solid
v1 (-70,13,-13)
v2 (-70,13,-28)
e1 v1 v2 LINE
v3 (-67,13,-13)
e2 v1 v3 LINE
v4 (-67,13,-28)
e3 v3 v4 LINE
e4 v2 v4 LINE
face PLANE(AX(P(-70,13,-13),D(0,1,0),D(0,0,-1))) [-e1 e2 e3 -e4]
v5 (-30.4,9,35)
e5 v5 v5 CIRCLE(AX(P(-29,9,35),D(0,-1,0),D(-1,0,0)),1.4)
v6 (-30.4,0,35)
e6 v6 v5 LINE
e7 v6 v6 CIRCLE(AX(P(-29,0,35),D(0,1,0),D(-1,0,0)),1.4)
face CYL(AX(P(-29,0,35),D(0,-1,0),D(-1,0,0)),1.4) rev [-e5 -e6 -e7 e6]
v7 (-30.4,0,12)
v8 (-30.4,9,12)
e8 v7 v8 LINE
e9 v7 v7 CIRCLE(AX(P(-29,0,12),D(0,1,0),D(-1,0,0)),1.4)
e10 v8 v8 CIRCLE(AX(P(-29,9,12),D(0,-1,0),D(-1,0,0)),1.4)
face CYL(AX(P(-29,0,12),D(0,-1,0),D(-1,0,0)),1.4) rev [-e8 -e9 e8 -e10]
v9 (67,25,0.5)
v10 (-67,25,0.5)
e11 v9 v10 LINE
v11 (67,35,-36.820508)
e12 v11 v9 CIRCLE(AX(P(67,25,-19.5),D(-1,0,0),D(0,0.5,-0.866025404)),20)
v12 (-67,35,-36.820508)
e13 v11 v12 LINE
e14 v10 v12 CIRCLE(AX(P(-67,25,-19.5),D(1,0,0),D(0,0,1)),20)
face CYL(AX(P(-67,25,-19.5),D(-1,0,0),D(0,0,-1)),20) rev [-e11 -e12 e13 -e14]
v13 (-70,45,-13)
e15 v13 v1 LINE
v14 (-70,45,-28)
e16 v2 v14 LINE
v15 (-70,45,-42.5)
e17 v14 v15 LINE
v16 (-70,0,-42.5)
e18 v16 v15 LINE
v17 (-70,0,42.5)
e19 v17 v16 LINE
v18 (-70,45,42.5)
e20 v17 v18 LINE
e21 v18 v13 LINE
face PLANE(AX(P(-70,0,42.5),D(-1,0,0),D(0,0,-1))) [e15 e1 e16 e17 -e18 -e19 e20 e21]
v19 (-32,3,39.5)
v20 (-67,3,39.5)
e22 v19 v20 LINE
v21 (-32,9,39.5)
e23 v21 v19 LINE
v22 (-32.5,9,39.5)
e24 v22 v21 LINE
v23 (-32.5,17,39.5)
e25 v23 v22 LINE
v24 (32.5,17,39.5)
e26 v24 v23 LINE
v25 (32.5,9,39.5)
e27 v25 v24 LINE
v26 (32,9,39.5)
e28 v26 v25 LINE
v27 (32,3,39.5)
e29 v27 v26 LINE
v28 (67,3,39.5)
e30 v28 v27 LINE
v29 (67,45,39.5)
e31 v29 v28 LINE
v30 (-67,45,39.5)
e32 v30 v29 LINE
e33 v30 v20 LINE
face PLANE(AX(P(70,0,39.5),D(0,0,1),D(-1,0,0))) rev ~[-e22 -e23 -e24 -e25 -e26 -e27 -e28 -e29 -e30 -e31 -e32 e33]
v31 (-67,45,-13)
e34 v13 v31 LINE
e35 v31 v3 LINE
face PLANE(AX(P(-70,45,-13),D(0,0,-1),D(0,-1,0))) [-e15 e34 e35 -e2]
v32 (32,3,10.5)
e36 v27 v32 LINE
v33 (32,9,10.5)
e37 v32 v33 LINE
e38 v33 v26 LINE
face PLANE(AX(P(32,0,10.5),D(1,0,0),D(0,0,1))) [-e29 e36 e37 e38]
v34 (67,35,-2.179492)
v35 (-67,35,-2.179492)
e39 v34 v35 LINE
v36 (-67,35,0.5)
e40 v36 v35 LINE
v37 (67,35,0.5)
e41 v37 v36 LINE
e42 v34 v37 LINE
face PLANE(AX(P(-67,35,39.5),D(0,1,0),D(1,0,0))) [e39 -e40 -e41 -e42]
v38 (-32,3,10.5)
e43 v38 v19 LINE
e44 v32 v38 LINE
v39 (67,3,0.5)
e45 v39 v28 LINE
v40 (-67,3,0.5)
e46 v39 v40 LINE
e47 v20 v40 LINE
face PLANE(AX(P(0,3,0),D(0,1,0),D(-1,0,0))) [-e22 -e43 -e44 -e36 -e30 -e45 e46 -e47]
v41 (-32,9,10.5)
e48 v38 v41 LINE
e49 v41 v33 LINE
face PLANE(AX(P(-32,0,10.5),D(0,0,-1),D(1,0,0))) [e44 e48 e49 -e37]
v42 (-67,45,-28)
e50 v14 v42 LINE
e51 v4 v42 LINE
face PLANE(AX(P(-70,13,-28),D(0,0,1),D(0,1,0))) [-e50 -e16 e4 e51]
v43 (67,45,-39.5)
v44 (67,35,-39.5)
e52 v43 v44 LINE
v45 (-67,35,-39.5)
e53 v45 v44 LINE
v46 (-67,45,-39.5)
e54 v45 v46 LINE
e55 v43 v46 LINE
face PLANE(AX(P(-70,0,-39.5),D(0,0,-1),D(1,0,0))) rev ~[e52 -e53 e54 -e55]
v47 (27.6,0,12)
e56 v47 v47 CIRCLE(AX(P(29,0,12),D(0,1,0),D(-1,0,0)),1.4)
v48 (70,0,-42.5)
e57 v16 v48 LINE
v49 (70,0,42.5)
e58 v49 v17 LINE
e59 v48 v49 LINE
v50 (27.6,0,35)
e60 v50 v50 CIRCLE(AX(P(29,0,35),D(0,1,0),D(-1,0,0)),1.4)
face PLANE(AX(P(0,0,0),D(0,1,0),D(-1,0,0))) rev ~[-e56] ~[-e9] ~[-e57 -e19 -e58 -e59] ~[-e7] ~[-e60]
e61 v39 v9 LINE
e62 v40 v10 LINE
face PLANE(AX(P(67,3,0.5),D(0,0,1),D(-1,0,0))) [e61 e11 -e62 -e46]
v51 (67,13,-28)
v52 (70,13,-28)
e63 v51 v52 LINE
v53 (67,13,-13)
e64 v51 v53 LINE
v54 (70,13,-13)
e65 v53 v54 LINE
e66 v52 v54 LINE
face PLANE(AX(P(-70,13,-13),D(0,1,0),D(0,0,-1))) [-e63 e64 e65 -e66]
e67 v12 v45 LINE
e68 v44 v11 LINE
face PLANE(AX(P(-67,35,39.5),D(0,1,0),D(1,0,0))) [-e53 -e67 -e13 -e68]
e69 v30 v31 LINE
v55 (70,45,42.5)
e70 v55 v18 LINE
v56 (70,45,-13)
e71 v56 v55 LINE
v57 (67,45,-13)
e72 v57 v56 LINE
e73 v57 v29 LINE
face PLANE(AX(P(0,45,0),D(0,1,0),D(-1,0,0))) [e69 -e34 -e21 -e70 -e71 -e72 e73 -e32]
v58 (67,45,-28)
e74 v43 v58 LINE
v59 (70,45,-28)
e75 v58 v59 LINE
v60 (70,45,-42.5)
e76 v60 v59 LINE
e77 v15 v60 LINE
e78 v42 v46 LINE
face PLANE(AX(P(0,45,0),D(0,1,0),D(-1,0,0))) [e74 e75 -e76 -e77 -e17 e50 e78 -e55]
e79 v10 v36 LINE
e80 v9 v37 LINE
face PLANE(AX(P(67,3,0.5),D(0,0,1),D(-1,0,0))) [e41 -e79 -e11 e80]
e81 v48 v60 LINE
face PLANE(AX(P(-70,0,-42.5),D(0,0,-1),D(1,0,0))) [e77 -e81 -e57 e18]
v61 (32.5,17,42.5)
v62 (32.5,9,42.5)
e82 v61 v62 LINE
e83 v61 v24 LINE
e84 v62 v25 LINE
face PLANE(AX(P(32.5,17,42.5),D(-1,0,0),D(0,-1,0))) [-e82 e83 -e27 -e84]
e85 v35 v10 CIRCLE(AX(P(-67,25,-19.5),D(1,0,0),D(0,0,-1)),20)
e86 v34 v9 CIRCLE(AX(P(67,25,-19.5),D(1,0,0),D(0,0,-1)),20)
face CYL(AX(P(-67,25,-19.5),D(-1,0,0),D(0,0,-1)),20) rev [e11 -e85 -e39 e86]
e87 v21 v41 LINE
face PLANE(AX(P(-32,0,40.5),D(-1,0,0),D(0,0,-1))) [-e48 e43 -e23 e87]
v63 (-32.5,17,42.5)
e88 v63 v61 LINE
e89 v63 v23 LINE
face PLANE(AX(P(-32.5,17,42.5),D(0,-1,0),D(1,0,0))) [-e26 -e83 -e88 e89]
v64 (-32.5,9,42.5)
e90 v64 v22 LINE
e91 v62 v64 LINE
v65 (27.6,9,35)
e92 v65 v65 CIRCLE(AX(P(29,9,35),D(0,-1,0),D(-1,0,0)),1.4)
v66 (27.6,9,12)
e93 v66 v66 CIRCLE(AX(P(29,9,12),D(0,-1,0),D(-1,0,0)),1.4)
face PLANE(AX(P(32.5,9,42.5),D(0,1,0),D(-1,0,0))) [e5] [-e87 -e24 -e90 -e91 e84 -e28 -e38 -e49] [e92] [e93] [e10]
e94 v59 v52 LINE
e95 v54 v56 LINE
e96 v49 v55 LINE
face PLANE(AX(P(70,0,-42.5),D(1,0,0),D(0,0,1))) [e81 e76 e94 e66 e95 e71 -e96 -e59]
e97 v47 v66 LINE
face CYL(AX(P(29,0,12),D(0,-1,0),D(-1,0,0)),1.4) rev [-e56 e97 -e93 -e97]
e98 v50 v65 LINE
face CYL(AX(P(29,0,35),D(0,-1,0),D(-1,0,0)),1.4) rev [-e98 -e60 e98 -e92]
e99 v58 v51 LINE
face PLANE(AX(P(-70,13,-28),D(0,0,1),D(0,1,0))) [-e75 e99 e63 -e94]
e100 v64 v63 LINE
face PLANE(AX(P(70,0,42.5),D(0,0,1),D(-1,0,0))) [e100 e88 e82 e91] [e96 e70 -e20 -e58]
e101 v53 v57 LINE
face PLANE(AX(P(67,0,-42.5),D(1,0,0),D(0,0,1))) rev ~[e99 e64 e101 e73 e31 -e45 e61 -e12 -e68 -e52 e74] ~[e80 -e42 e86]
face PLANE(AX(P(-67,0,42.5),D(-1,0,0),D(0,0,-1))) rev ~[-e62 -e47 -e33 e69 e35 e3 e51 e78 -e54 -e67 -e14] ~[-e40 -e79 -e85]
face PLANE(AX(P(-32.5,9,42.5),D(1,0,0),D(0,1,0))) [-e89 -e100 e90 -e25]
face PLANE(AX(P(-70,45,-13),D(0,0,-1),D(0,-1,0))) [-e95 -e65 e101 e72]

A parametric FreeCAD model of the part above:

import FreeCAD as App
import Part
import Sketcher

V = App.Vector


def faces_at(feature, points):
    """Names of the faces that lie closest to the given points."""
    faces = feature.Shape.Faces
    near = lambda p: min(range(len(faces)), key=lambda i: faces[i].distToShape(Part.Vertex(*p))[0])
    return sorted({f"Face{near(p) + 1}" for p in points})


def add_polygon(sketch, points):
    """Adds a closed chain of lines whose ends are joined by coincident constraints."""
    first, n = sketch.GeometryCount, len(points)
    for a, b in zip(points, points[1:] + points[:1]):
        sketch.addGeometry(Part.LineSegment(App.Vector(*a, 0), App.Vector(*b, 0)), False)
    for i in range(n):
        sketch.addConstraint(Sketcher.Constraint("Coincident", first + i, 2, first + (i + 1) % n, 1))

doc = App.newDocument("Part")
params = doc.addObject("Spreadsheet::Sheet", "Params")
for row, (alias, value) in enumerate([
    ("sketch1_width", "140 mm"),
    ("sketch1_height", "85 mm"),
    ("pad1_length", "45 mm"),
    ("thickness_wall", "3 mm"),
    ("sketch2_height", "40 mm"),
    ("sketch2_width", "134 mm"),
    ("pad2_length", "32 mm"),
    ("sketch3_diameter", "40 mm"),
    ("pocket1_length", "134 mm"),
    ("sketch4_width", "32 mm"),
    ("sketch4_height", "15 mm"),
    ("sketch5_width", "64 mm"),
    ("sketch5_height", "30 mm"),
    ("pad3_length", "9 mm"),
    ("sketch6_width", "65 mm"),
    ("sketch6_height", "8 mm"),
    ("sketch7_diameter", "2.8 mm"),
], start=1):
    params.set(f"A{row}", alias)
    params.set(f"B{row}", "=" + value)
    params.setAlias(f"B{row}", alias)

body = doc.addObject("PartDesign::Body", "Body")

# Sketch on XZ plane
sketch1 = body.newObject("Sketcher::SketchObject", "Sketch")
sketch1.AttachmentSupport = (doc.getObject("XZ_Plane"), [""])
sketch1.MapMode = "FlatFace"
add_polygon(sketch1, [(70, -42.5), (-70, -42.5), (-70, 42.5), (70, 42.5)])  # lines 0-3
sketch1.addConstraint([
    Sketcher.Constraint("Horizontal", 0),
    Sketcher.Constraint("Vertical", 1),
    Sketcher.Constraint("Horizontal", 2),
    Sketcher.Constraint("Vertical", 3),
    Sketcher.Constraint("Symmetric", 0, 2, 2, 2, -1, 1),
    Sketcher.Constraint("DistanceX", 0, 2, 0, 1, 140.0),
    Sketcher.Constraint("DistanceY", 1, 1, 1, 2, 85.0),
])
sketch1.setExpression("Constraints[9]", "Params.sketch1_width")
sketch1.setExpression("Constraints[10]", "Params.sketch1_height")
pad1 = body.newObject("PartDesign::Pad", "Pad")
pad1.Profile = sketch1
pad1.setExpression("Length", "Params.pad1_length")
pad1.Reversed = True
doc.recompute()

thickness = body.newObject("PartDesign::Thickness", "Thickness")
thickness.Base = (pad1, faces_at(pad1, [(-23.333, 45, -14.167)]))
thickness.setExpression("Value", "Params.thickness_wall")
thickness.Reversed = True
thickness.Join = "Intersection"

# Sketch on XZ plane
sketch2 = body.newObject("Sketcher::SketchObject", "Sketch001")
sketch2.AttachmentSupport = (doc.getObject("XZ_Plane"), [""])
sketch2.MapMode = "FlatFace"
sketch2.AttachmentOffset = App.Placement(V(0, 0, -3), App.Rotation())
add_polygon(sketch2, [(67, -39.5), (-67, -39.5), (-67, 0.5), (67, 0.5)])  # lines 0-3
sketch2.addConstraint([
    Sketcher.Constraint("Horizontal", 0),
    Sketcher.Constraint("Vertical", 1),
    Sketcher.Constraint("Horizontal", 2),
    Sketcher.Constraint("Vertical", 3),
    Sketcher.Constraint("DistanceY", 1, 1, 1, 2, 40.0),
    Sketcher.Constraint("DistanceX", 0, 2, 0, 1, 134.0),
    Sketcher.Constraint("DistanceX", 0, 2, -1, 1, 67.0),
    Sketcher.Constraint("DistanceY", 0, 2, -1, 1, 39.5),
])
sketch2.setExpression("Constraints[8]", "Params.sketch2_height")
sketch2.setExpression("Constraints[9]", "Params.sketch2_width")
pad2 = body.newObject("PartDesign::Pad", "Pad001")
pad2.Profile = sketch2
pad2.setExpression("Length", "Params.pad2_length")
pad2.Reversed = True

# Sketch on YZ plane
sketch3 = body.newObject("Sketcher::SketchObject", "Sketch002")
sketch3.AttachmentSupport = (doc.getObject("YZ_Plane"), [""])
sketch3.MapMode = "FlatFace"
sketch3.AttachmentOffset = App.Placement(V(0, 0, -67), App.Rotation())
sketch3.addGeometry(Part.Circle(V(25, -19.5, 0), V(0, 0, 1), 20), False)
sketch3.addConstraint([
    Sketcher.Constraint("Diameter", 0, 40.0),
    Sketcher.Constraint("DistanceX", -1, 1, 0, 3, 25.0),
    Sketcher.Constraint("DistanceY", 0, 3, -1, 1, 19.5),
])
sketch3.setExpression("Constraints[0]", "Params.sketch3_diameter")
pocket1 = body.newObject("PartDesign::Pocket", "Pocket")
pocket1.Profile = sketch3
pocket1.setExpression("Length", "Params.pocket1_length")
pocket1.Reversed = True

# Sketch on YZ plane
sketch4 = body.newObject("Sketcher::SketchObject", "Sketch003")
sketch4.AttachmentSupport = (doc.getObject("YZ_Plane"), [""])
sketch4.MapMode = "FlatFace"
sketch4.AttachmentOffset = App.Placement(V(0, 0, -70), App.Rotation())
add_polygon(sketch4, [(45, -13), (45, -28), (13, -28), (13, -13)])  # lines 0-3
sketch4.addConstraint([
    Sketcher.Constraint("Vertical", 0),
    Sketcher.Constraint("Horizontal", 1),
    Sketcher.Constraint("Vertical", 2),
    Sketcher.Constraint("Horizontal", 3),
    Sketcher.Constraint("DistanceX", 1, 2, 1, 1, 32.0),
    Sketcher.Constraint("DistanceY", 0, 2, 0, 1, 15.0),
    Sketcher.Constraint("DistanceX", -1, 1, 0, 2, 45.0),
    Sketcher.Constraint("DistanceY", 0, 2, -1, 1, 28.0),
])
sketch4.setExpression("Constraints[8]", "Params.sketch4_width")
sketch4.setExpression("Constraints[9]", "Params.sketch4_height")
pocket2 = body.newObject("PartDesign::Pocket", "Pocket001")
pocket2.Profile = sketch4
pocket2.Type = "ThroughAll"
pocket2.Midplane = True

# Sketch on XZ plane
sketch5 = body.newObject("Sketcher::SketchObject", "Sketch004")
sketch5.AttachmentSupport = (doc.getObject("XZ_Plane"), [""])
sketch5.MapMode = "FlatFace"
add_polygon(sketch5, [(32, 10.5), (-32, 10.5), (-32, 40.5), (32, 40.5)])  # lines 0-3
sketch5.addConstraint([
    Sketcher.Constraint("Horizontal", 0),
    Sketcher.Constraint("Vertical", 1),
    Sketcher.Constraint("Horizontal", 2),
    Sketcher.Constraint("Vertical", 3),
    Sketcher.Constraint("DistanceX", 0, 2, 0, 1, 64.0),
    Sketcher.Constraint("DistanceY", 1, 1, 1, 2, 30.0),
    Sketcher.Constraint("DistanceY", -1, 1, 0, 2, 10.5),
    Sketcher.Constraint("DistanceX", 0, 2, -1, 1, 32.0),
])
sketch5.setExpression("Constraints[8]", "Params.sketch5_width")
sketch5.setExpression("Constraints[9]", "Params.sketch5_height")
pad3 = body.newObject("PartDesign::Pad", "Pad002")
pad3.Profile = sketch5
pad3.setExpression("Length", "Params.pad3_length")
pad3.Reversed = True

# Sketch on XY plane
sketch6 = body.newObject("Sketcher::SketchObject", "Sketch005")
sketch6.AttachmentSupport = (doc.getObject("XY_Plane"), [""])
sketch6.MapMode = "FlatFace"
sketch6.AttachmentOffset = App.Placement(V(0, 0, 42.5), App.Rotation())
add_polygon(sketch6, [(32.5, 17), (-32.5, 17), (-32.5, 9), (32.5, 9)])  # lines 0-3
sketch6.addConstraint([
    Sketcher.Constraint("Horizontal", 0),
    Sketcher.Constraint("Vertical", 1),
    Sketcher.Constraint("Horizontal", 2),
    Sketcher.Constraint("Vertical", 3),
    Sketcher.Constraint("DistanceX", 0, 2, 0, 1, 65.0),
    Sketcher.Constraint("DistanceY", 1, 2, 1, 1, 8.0),
    Sketcher.Constraint("DistanceY", -1, 1, 1, 2, 9.0),
    Sketcher.Constraint("DistanceX", 0, 2, -1, 1, 32.5),
])
sketch6.setExpression("Constraints[8]", "Params.sketch6_width")
sketch6.setExpression("Constraints[9]", "Params.sketch6_height")
pocket3 = body.newObject("PartDesign::Pocket", "Pocket002")
pocket3.Profile = sketch6
pocket3.Type = "UpToFirst"

# Sketch on XZ plane
sketch7 = body.newObject("Sketcher::SketchObject", "Sketch006")
sketch7.AttachmentSupport = (doc.getObject("XZ_Plane"), [""])
sketch7.MapMode = "FlatFace"
sketch7.addGeometry([
    Part.Circle(V(-29, 12, 0), V(0, 0, 1), 1.4),
    Part.Circle(V(29, 12, 0), V(0, 0, 1), 1.4),
    Part.Circle(V(29, 35, 0), V(0, 0, 1), 1.4),
    Part.Circle(V(-29, 35, 0), V(0, 0, 1), 1.4),
], False)
sketch7.addConstraint([
    Sketcher.Constraint("Equal", 0, 1),
    Sketcher.Constraint("Equal", 1, 2),
    Sketcher.Constraint("Equal", 2, 3),
    Sketcher.Constraint("Symmetric", 0, 3, 1, 3, -2),
    Sketcher.Constraint("Symmetric", 2, 3, 3, 3, -2),
    Sketcher.Constraint("Vertical", 1, 3, 2, 3),
    Sketcher.Constraint("Diameter", 0, 2.8),
    Sketcher.Constraint("DistanceY", -1, 1, 0, 3, 12.0),
    Sketcher.Constraint("DistanceX", 0, 3, 1, 3, 58.0),
    Sketcher.Constraint("DistanceY", 1, 3, 2, 3, 23.0),
])
sketch7.setExpression("Constraints[6]", "Params.sketch7_diameter")
pocket4 = body.newObject("PartDesign::Pocket", "Pocket003")
pocket4.Profile = sketch7
pocket4.Type = "ThroughAll"
pocket4.Midplane = True

doc.recompute()
